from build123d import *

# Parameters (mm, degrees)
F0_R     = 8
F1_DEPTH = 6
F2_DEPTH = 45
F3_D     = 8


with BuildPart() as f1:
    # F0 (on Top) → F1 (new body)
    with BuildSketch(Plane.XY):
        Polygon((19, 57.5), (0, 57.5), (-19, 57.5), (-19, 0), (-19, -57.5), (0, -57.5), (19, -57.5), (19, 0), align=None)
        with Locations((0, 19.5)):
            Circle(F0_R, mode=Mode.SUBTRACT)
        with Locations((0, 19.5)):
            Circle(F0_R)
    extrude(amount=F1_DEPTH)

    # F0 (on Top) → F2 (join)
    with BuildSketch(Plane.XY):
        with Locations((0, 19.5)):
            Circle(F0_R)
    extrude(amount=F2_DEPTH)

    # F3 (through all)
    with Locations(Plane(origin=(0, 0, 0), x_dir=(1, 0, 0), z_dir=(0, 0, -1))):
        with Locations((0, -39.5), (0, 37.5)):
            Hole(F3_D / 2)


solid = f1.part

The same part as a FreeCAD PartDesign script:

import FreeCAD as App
import Part
import Sketcher

V = App.Vector

doc = App.newDocument("Part")
body = doc.addObject("PartDesign::Body", "Body")

sketch1 = body.newObject("Sketcher::SketchObject", "Sketch")
sketch1.AttachmentSupport = (doc.getObject("XY_Plane"), [""])
sketch1.MapMode = "FlatFace"
sketch1.addGeometry(Part.LineSegment(V(19, 58, 0), V(-19, 58, 0)), False)
sketch1.addGeometry(Part.LineSegment(V(-19, 58, 0), V(-19, -58, 0)), False)
sketch1.addGeometry(Part.LineSegment(V(-19, -58, 0), V(19, -58, 0)), False)
sketch1.addGeometry(Part.LineSegment(V(19, -58, 0), V(19, 58, 0)), False)
sketch1.addConstraint(Sketcher.Constraint("Coincident", 0, 2, 1, 1))
sketch1.addConstraint(Sketcher.Constraint("Coincident", 1, 2, 2, 1))
sketch1.addConstraint(Sketcher.Constraint("Coincident", 2, 2, 3, 1))
sketch1.addConstraint(Sketcher.Constraint("Coincident", 3, 2, 0, 1))
sketch1.addConstraint(Sketcher.Constraint("Horizontal", 0))
sketch1.addConstraint(Sketcher.Constraint("Vertical", 1))
sketch1.addConstraint(Sketcher.Constraint("Horizontal", 2))
sketch1.addConstraint(Sketcher.Constraint("Vertical", 3))
sketch1.addConstraint(Sketcher.Constraint("Symmetric", 0, 2, 2, 2, -1, 1))
sketch1.addConstraint(Sketcher.Constraint("DistanceX", 0, 2, 0, 1, 38.0))
sketch1.addConstraint(Sketcher.Constraint("DistanceY", 1, 2, 1, 1, 115.0))
pad1 = body.newObject("PartDesign::Pad", "Pad")
pad1.Profile = sketch1
pad1.Length = 6

sketch2 = body.newObject("Sketcher::SketchObject", "Sketch001")
sketch2.AttachmentSupport = (doc.getObject("XY_Plane"), [""])
sketch2.MapMode = "FlatFace"
sketch2.addGeometry(Part.Circle(V(0, 20, 0), V(0, 0, 1), 8), False)
sketch2.addConstraint(Sketcher.Constraint("PointOnObject", 0, 3, -2))
sketch2.addConstraint(Sketcher.Constraint("Diameter", 0, 16.0))
sketch2.addConstraint(Sketcher.Constraint("DistanceY", -1, 1, 0, 3, 19.5))
pad2 = body.newObject("PartDesign::Pad", "Pad001")
pad2.Profile = sketch2
pad2.Length = 45

sketch3 = body.newObject("Sketcher::SketchObject", "Sketch002")
sketch3.AttachmentSupport = (doc.getObject("XY_Plane"), [""])
sketch3.MapMode = "FlatFace"
sketch3.addGeometry(Part.Circle(V(0, 39.5, 0), V(0, 0, 1), 4), False)
sketch3.addGeometry(Part.Circle(V(0, -37.5, 0), V(0, 0, 1), 4), False)
sketch3.addConstraint(Sketcher.Constraint("Equal", 0, 1))
sketch3.addConstraint(Sketcher.Constraint("PointOnObject", 0, 3, -2))
sketch3.addConstraint(Sketcher.Constraint("PointOnObject", 1, 3, -2))
sketch3.addConstraint(Sketcher.Constraint("Diameter", 0, 8.0))
sketch3.addConstraint(Sketcher.Constraint("DistanceY", 1, 3, 0, 3, 77.0))
sketch3.addConstraint(Sketcher.Constraint("DistanceY", -1, 1, 0, 3, 39.5))
doc.recompute()
hole = body.newObject("PartDesign::Hole", "Hole")
hole.Profile = sketch3
hole.ThreadType = "None"
hole.Diameter = 8
hole.DepthType = "ThroughAll"
hole.Reversed = True

doc.recompute()
